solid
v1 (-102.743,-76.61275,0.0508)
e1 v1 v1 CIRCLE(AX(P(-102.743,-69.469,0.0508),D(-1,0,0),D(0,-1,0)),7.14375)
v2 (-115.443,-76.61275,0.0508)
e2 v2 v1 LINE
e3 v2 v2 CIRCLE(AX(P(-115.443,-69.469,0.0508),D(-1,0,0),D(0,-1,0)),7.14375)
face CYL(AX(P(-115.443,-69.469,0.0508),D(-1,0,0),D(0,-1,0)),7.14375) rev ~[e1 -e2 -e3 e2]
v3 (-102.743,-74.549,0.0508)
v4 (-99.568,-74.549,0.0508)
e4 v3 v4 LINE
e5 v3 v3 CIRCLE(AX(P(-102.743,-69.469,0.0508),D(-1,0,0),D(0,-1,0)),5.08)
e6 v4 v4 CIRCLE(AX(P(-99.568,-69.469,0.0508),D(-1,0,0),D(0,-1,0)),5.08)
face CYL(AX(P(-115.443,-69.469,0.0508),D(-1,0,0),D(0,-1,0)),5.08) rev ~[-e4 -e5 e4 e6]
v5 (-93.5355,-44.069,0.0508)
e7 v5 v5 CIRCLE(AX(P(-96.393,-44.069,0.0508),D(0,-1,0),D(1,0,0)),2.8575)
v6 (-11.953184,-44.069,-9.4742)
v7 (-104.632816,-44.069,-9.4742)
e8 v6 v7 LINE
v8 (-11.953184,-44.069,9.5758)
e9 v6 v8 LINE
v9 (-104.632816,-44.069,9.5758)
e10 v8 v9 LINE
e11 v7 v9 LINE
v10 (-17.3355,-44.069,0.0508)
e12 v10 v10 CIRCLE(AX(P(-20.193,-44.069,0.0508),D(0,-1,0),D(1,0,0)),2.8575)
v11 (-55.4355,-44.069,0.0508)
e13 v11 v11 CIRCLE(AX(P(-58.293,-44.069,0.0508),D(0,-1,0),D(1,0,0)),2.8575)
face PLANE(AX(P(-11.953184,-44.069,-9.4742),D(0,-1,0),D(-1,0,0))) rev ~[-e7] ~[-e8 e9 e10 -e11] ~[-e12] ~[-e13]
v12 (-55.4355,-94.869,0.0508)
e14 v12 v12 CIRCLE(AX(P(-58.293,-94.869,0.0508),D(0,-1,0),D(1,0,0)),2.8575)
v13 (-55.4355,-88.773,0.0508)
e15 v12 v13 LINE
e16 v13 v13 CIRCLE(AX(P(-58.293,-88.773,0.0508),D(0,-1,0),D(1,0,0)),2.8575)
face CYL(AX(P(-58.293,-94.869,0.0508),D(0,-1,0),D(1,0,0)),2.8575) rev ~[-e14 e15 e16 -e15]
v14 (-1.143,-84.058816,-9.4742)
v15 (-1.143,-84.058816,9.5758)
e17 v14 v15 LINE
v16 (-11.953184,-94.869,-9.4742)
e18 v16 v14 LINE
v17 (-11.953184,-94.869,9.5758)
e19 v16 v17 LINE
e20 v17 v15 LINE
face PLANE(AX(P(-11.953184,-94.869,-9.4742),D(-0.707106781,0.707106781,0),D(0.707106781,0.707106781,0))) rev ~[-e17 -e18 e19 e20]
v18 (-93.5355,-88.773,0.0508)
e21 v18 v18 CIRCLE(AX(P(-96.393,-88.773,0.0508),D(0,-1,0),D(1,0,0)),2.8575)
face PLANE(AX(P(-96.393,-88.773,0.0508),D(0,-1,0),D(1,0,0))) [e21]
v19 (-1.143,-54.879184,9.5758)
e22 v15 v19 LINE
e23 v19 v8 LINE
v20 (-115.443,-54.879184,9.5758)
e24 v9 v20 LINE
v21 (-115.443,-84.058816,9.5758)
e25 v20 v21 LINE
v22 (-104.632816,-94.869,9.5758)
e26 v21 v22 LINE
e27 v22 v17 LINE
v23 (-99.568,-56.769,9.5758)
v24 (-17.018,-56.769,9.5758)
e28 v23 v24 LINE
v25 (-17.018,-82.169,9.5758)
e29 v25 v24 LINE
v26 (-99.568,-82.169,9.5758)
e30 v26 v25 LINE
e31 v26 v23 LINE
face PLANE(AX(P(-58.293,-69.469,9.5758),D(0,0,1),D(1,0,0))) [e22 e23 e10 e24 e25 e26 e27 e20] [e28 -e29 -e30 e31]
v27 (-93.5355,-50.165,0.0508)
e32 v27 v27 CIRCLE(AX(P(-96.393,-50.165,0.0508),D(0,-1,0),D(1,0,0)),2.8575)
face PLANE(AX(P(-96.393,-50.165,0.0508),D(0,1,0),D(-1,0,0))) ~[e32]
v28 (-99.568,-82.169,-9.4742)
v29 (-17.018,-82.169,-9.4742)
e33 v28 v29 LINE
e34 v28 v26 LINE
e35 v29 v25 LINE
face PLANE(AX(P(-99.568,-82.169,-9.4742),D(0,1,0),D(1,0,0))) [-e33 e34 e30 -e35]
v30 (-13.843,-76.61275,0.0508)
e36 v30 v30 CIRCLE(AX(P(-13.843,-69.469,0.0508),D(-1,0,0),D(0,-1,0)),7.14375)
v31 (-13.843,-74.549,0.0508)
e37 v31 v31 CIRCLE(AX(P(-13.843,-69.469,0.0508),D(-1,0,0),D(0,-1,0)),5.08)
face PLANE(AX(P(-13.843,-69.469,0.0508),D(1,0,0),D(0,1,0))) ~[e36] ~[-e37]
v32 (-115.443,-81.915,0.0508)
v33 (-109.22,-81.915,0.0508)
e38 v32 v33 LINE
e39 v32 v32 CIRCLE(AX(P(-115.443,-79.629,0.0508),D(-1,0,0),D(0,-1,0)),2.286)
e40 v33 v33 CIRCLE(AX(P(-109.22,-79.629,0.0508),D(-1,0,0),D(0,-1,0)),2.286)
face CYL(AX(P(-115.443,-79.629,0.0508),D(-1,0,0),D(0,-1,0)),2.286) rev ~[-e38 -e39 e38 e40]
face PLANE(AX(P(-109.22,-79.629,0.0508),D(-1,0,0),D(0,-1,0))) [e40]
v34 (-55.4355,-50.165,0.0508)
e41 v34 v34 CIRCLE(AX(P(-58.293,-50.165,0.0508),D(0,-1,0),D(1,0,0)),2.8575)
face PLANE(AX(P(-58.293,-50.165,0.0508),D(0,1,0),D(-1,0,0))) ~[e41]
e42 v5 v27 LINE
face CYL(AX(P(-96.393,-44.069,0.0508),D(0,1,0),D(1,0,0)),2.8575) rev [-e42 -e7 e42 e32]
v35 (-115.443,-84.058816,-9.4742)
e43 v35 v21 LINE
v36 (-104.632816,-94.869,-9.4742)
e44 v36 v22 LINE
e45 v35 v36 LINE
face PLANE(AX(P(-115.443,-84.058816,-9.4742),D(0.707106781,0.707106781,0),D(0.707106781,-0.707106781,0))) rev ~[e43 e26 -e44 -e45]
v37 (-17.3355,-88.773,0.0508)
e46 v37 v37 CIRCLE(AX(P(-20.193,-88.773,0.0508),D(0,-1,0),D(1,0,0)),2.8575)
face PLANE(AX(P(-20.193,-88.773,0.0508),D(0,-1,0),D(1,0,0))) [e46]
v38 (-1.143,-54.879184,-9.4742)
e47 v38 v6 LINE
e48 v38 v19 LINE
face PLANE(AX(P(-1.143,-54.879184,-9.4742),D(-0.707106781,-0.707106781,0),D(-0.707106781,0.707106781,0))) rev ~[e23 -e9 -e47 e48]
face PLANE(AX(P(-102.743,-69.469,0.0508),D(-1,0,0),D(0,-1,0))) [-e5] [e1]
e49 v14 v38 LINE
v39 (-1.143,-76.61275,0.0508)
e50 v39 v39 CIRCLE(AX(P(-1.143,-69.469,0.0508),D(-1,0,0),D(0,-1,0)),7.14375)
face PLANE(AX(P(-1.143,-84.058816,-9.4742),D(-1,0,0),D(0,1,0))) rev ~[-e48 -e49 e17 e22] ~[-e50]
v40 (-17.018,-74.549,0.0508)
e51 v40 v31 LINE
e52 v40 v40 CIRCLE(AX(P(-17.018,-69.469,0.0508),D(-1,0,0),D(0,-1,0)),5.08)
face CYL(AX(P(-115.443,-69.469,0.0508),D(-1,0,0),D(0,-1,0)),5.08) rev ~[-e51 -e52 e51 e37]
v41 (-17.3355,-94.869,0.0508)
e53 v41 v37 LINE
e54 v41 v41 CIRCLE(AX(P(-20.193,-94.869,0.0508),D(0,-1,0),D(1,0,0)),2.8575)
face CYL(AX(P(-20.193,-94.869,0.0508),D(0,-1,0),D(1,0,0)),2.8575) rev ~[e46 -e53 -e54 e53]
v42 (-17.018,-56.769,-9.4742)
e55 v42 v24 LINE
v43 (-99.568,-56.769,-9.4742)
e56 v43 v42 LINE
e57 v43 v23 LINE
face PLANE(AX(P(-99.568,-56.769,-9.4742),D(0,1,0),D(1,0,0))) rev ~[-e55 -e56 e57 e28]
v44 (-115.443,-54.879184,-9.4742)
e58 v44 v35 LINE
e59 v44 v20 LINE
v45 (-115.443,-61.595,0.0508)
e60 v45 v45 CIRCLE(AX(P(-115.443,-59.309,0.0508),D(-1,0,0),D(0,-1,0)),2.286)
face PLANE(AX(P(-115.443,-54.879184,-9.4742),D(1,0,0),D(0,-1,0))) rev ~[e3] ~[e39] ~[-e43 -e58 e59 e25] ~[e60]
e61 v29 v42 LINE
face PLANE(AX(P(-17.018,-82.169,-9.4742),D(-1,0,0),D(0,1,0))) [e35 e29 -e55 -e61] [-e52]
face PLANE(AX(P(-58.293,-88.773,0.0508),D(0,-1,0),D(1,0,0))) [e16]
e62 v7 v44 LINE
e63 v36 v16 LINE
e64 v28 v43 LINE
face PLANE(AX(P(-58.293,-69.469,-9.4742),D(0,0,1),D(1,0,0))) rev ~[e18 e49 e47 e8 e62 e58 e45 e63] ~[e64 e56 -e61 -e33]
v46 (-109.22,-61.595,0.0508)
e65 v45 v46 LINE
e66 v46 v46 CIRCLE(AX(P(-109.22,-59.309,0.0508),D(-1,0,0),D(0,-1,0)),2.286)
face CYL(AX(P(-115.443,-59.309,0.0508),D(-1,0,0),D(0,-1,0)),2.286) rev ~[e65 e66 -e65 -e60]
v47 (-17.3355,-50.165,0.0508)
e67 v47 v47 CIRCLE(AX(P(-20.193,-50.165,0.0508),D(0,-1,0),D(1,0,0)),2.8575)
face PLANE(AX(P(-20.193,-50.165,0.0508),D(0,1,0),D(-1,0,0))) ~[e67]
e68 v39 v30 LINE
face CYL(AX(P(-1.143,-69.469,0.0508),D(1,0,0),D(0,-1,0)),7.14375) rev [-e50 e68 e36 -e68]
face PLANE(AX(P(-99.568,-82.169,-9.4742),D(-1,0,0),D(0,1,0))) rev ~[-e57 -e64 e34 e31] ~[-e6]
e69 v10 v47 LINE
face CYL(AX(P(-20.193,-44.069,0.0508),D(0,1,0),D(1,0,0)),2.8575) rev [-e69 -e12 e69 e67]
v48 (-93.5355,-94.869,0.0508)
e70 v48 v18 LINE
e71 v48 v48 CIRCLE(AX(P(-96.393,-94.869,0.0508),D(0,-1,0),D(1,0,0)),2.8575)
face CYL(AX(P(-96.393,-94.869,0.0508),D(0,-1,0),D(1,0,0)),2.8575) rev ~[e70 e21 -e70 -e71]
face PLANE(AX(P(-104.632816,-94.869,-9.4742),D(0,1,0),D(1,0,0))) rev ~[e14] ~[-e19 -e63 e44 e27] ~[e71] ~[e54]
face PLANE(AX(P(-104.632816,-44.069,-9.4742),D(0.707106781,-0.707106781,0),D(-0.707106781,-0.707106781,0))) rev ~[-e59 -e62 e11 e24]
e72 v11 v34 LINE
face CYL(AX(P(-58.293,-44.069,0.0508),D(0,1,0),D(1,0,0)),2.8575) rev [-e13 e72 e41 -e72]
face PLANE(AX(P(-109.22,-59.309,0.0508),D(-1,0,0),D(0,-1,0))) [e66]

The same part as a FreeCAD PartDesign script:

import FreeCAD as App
import Part
import Sketcher

V = App.Vector
Q = App.Units.Quantity

doc = App.newDocument("Part")
body = doc.addObject("PartDesign::Body", "Body")

sketch1 = body.newObject("Sketcher::SketchObject", "Sketch")
sketch1.AttachmentSupport = (doc.getObject("XY_Plane"), [""])
sketch1.MapMode = "FlatFace"
sketch1.addGeometry(Part.LineSegment(V(-57, 15, 0), V(-57, -15, 0)), False)
sketch1.addGeometry(Part.LineSegment(V(-57, -15, 0), V(-46, -25, 0)), False)
sketch1.addGeometry(Part.LineSegment(V(-46, -25, 0), V(46, -25, 0)), False)
sketch1.addGeometry(Part.LineSegment(V(46, -25, 0), V(57, -15, 0)), False)
sketch1.addGeometry(Part.LineSegment(V(57, -15, 0), V(57, 15, 0)), False)
sketch1.addGeometry(Part.LineSegment(V(57, 15, 0), V(46, 25, 0)), False)
sketch1.addGeometry(Part.LineSegment(V(46, 25, 0), V(-46, 25, 0)), False)
sketch1.addGeometry(Part.LineSegment(V(-46, 25, 0), V(-57, 15, 0)), False)
sketch1.addGeometry(Part.LineSegment(V(41, -13, 0), V(-41, -13, 0)), False)
sketch1.addGeometry(Part.LineSegment(V(-41, -13, 0), V(-41, 13, 0)), False)
sketch1.addGeometry(Part.LineSegment(V(-41, 13, 0), V(41, 13, 0)), False)
sketch1.addGeometry(Part.LineSegment(V(41, 13, 0), V(41, -13, 0)), False)
sketch1.addConstraint(Sketcher.Constraint("Coincident", 0, 2, 1, 1))
sketch1.addConstraint(Sketcher.Constraint("Coincident", 1, 2, 2, 1))
sketch1.addConstraint(Sketcher.Constraint("Coincident", 2, 2, 3, 1))
sketch1.addConstraint(Sketcher.Constraint("Coincident", 3, 2, 4, 1))
sketch1.addConstraint(Sketcher.Constraint("Coincident", 4, 2, 5, 1))
sketch1.addConstraint(Sketcher.Constraint("Coincident", 5, 2, 6, 1))
sketch1.addConstraint(Sketcher.Constraint("Coincident", 6, 2, 7, 1))
sketch1.addConstraint(Sketcher.Constraint("Coincident", 7, 2, 0, 1))
sketch1.addConstraint(Sketcher.Constraint("Coincident", 8, 2, 9, 1))
sketch1.addConstraint(Sketcher.Constraint("Coincident", 9, 2, 10, 1))
sketch1.addConstraint(Sketcher.Constraint("Coincident", 10, 2, 11, 1))
sketch1.addConstraint(Sketcher.Constraint("Coincident", 11, 2, 8, 1))
sketch1.addConstraint(Sketcher.Constraint("Vertical", 0))
sketch1.addConstraint(Sketcher.Constraint("Horizontal", 2))
sketch1.addConstraint(Sketcher.Constraint("Vertical", 4))
sketch1.addConstraint(Sketcher.Constraint("Horizontal", 6))
sketch1.addConstraint(Sketcher.Constraint("Horizontal", 8))
sketch1.addConstraint(Sketcher.Constraint("Vertical", 9))
sketch1.addConstraint(Sketcher.Constraint("Horizontal", 10))
sketch1.addConstraint(Sketcher.Constraint("Vertical", 11))
sketch1.addConstraint(Sketcher.Constraint("Symmetric", 0, 2, 4, 2, -1, 1))
sketch1.addConstraint(Sketcher.Constraint("Symmetric", 1, 2, 5, 2, -1, 1))
sketch1.addConstraint(Sketcher.Constraint("Symmetric", 8, 2, 10, 2, -1, 1))
sketch1.addConstraint(Sketcher.Constraint("Perpendicular", 1, 3))
sketch1.addConstraint(Sketcher.Constraint("Perpendicular", 5, 7))
sketch1.addConstraint(Sketcher.Constraint("Horizontal", 0, 2, 3, 2))
sketch1.addConstraint(Sketcher.Constraint("Horizontal", 4, 2, 7, 2))
sketch1.addConstraint(Sketcher.Constraint("Vertical", 2, 2, 5, 2))
sketch1.addConstraint(Sketcher.Constraint("DistanceY", 9, 1, 9, 2, Q("1 in")))
sketch1.addConstraint(Sketcher.Constraint("DistanceY", 1, 2, -1, 1, Q("1 in")))
sketch1.addConstraint(Sketcher.Constraint("DistanceX", 8, 2, 8, 1, Q("3.25 in")))
sketch1.addConstraint(Sketcher.Constraint("DistanceX", 0, 2, 3, 2, Q("4.5 in")))
sketch1.addConstraint(Sketcher.Constraint("DistanceX", 2, 1, 2, 2, 92.679632))
pad1 = body.newObject("PartDesign::Pad", "Pad")
pad1.Profile = sketch1
pad1.Length = Q("0.75 in")

sketch2 = body.newObject("Sketcher::SketchObject", "Sketch001")
sketch2.AttachmentSupport = (doc.getObject("YZ_Plane"), [""])
sketch2.MapMode = "FlatFace"
sketch2.AttachmentOffset = App.Placement(V(0, 0, -2.25 * 25.4), App.Rotation())
sketch2.addGeometry(Part.Circle(V(0, 10, 0), V(0, 0, 1), 5), False)
sketch2.addConstraint(Sketcher.Constraint("PointOnObject", 0, 3, -2))
sketch2.addConstraint(Sketcher.Constraint("Diameter", 0, Q("0.4 in")))
sketch2.addConstraint(Sketcher.Constraint("DistanceY", -1, 1, 0, 3, Q("0.375 in")))
pocket1 = body.newObject("PartDesign::Pocket", "Pocket")
pocket1.Profile = sketch2
pocket1.Type = "ThroughAll"
pocket1.Reversed = True

sketch3 = body.newObject("Sketcher::SketchObject", "Sketch002")
sketch3.AttachmentSupport = (doc.getObject("YZ_Plane"), [""])
sketch3.MapMode = "FlatFace"
sketch3.AttachmentOffset = App.Placement(V(0, 0, -2.25 * 25.4), App.Rotation())
sketch3.addGeometry(Part.Circle(V(-10.2, 9.5, 0), V(0, 0, 1), 2.3), False)
sketch3.addGeometry(Part.Circle(V(10.2, 9.5, 0), V(0, 0, 1), 2.3), False)
sketch3.addConstraint(Sketcher.Constraint("Equal", 0, 1))
sketch3.addConstraint(Sketcher.Constraint("Symmetric", 0, 3, 1, 3, -2))
sketch3.addConstraint(Sketcher.Constraint("Diameter", 0, Q("0.18 in")))
sketch3.addConstraint(Sketcher.Constraint("DistanceX", 0, 3, -1, 1, Q("0.4 in")))
sketch3.addConstraint(Sketcher.Constraint("DistanceY", -1, 1, 0, 3, Q("0.375 in")))
pocket2 = body.newObject("PartDesign::Pocket", "Pocket001")
pocket2.Profile = sketch3
pocket2.Length = Q("0.245 in")
pocket2.Reversed = True

sketch4 = body.newObject("Sketcher::SketchObject", "Sketch003")
sketch4.AttachmentSupport = (doc.getObject("YZ_Plane"), [""])
sketch4.MapMode = "FlatFace"
sketch4.AttachmentOffset = App.Placement(V(0, 0, -2.25 * 25.4), App.Rotation())
sketch4.addGeometry(Part.Circle(V(0, 10, 0), V(0, 0, 1), 7), False)
sketch4.addConstraint(Sketcher.Constraint("PointOnObject", 0, 3, -2))
sketch4.addConstraint(Sketcher.Constraint("Diameter", 0, Q("0.5625 in")))
sketch4.addConstraint(Sketcher.Constraint("DistanceY", -1, 1, 0, 3, Q("0.375 in")))
pocket3 = body.newObject("PartDesign::Pocket", "Pocket002")
pocket3.Profile = sketch4
pocket3.Length = Q("0.5 in")
pocket3.Reversed = True
doc.recompute()

mirrored = body.newObject("PartDesign::Mirrored", "Mirrored")
mirrored.Originals = [pocket3]
mirrored.MirrorPlane = (doc.getObject("YZ_Plane"), [""])
body.Tip = mirrored

sketch5 = body.newObject("Sketcher::SketchObject", "Sketch004")
sketch5.AttachmentSupport = (doc.getObject("XZ_Plane"), [""])
sketch5.MapMode = "FlatFace"
sketch5.AttachmentOffset = App.Placement(V(0, 0, 1 * 25.4), App.Rotation())
sketch5.addGeometry(Part.Circle(V(0, 9.5, 0), V(0, 0, 1), 2.9), False)
sketch5.addGeometry(Part.Circle(V(38.1, 9.5, 0), V(0, 0, 1), 2.9), False)
sketch5.addGeometry(Part.Circle(V(-38.1, 9.5, 0), V(0, 0, 1), 2.9), False)
sketch5.addConstraint(Sketcher.Constraint("Equal", 0, 1))
sketch5.addConstraint(Sketcher.Constraint("Equal", 1, 2))
sketch5.addConstraint(Sketcher.Constraint("Symmetric", 1, 3, 2, 3, -2))
sketch5.addConstraint(Sketcher.Constraint("PointOnObject", 0, 3, -2))
sketch5.addConstraint(Sketcher.Constraint("Horizontal", 0, 3, 1, 3))
sketch5.addConstraint(Sketcher.Constraint("Diameter", 0, Q("0.225 in")))
sketch5.addConstraint(Sketcher.Constraint("DistanceX", 2, 3, 1, 3, Q("3 in")))
sketch5.addConstraint(Sketcher.Constraint("DistanceY", -1, 1, 0, 3, Q("0.375 in")))
pocket4 = body.newObject("PartDesign::Pocket", "Pocket003")
pocket4.Profile = sketch5
pocket4.Length = Q("0.24 in")
doc.recompute()

mirrored2 = body.newObject("PartDesign::Mirrored", "Mirrored001")
mirrored2.Originals = [pocket4]
mirrored2.MirrorPlane = (doc.getObject("XZ_Plane"), [""])
body.Tip = mirrored2
body2 = doc.addObject("PartDesign::Body", "Body001")
doc.recompute()

body.Placement = App.Placement(V(-58.293, -69.469, -9.4742), App.Rotation(V(0, 0, 1), 0))
boolean = body2.newObject("PartDesign::Boolean", "Boolean")
boolean.Type = "Fuse"
boolean.addObjects([body])

doc.recompute()
